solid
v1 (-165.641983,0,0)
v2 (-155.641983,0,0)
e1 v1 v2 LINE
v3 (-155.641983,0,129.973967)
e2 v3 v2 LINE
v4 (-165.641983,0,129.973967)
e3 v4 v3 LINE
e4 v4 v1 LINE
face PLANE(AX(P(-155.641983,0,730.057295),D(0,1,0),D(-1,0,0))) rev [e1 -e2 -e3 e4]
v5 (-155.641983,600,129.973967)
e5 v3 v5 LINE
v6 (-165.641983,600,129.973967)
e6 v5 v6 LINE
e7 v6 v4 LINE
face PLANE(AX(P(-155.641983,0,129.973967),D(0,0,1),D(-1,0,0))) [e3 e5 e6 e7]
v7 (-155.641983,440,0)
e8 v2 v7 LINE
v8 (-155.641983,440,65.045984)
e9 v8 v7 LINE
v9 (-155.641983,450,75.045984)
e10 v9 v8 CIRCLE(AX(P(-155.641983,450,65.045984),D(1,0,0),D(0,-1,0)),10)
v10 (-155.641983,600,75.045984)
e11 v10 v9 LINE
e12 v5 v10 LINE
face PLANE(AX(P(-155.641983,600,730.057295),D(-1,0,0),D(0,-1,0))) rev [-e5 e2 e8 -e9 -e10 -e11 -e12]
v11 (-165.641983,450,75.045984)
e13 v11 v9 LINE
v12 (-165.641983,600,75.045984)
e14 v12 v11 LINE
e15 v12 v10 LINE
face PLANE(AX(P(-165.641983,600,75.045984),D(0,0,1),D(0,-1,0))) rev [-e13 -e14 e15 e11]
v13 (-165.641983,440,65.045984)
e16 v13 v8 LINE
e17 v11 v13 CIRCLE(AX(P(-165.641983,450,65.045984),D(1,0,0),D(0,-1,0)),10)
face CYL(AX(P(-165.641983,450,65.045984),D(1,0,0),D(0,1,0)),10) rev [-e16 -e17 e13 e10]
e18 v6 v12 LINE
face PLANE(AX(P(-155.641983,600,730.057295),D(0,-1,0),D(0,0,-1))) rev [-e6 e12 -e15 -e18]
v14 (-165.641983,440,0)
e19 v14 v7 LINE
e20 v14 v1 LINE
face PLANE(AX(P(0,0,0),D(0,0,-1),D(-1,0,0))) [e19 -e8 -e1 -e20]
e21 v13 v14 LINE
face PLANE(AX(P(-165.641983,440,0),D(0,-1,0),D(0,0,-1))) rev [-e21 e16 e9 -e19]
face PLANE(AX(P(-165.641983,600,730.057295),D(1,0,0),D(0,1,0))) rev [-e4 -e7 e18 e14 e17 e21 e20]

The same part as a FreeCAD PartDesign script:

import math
import FreeCAD as App
import Part
import Sketcher

V = App.Vector
Q = App.Units.Quantity


def add_polygon(sketch, points):
    """Adds a closed chain of lines whose ends are joined by coincident constraints."""
    first, n = sketch.GeometryCount, len(points)
    for a, b in zip(points, points[1:] + points[:1]):
        sketch.addGeometry(Part.LineSegment(App.Vector(*a, 0), App.Vector(*b, 0)), False)
    for i in range(n):
        sketch.addConstraint(Sketcher.Constraint("Coincident", first + i, 2, first + (i + 1) % n, 1))

doc = App.newDocument("Part")
body = doc.addObject("PartDesign::Body", "Body")

# Sketch on XY plane
sketch1 = body.newObject("Sketcher::SketchObject", "Sketch")
sketch1.AttachmentSupport = (doc.getObject("XY_Plane"), [""])
sketch1.MapMode = "FlatFace"
add_polygon(sketch1, [(-166, 600), (-166, 0), (-156, 0), (-156, 600)])  # lines 0-3
sketch1.addConstraint(Sketcher.Constraint("Vertical", 0))
sketch1.addConstraint(Sketcher.Constraint("Horizontal", 1))
sketch1.addConstraint(Sketcher.Constraint("Vertical", 2))
sketch1.addConstraint(Sketcher.Constraint("Horizontal", 3))
sketch1.addConstraint(Sketcher.Constraint("PointOnObject", 0, 2, -1))
sketch1.addConstraint(Sketcher.Constraint("DistanceX", 1, 1, 1, 2, Q("10 mm")))
sketch1.addConstraint(Sketcher.Constraint("DistanceY", 0, 2, 0, 1, Q("600 mm")))
sketch1.addConstraint(Sketcher.Constraint("DistanceX", 0, 2, -1, 1, Q("165.641983 mm")))
pad1 = body.newObject("PartDesign::Pad", "Pad")
pad1.Profile = sketch1
pad1.Length = 129.973967

# Sketch on YZ plane
sketch2 = body.newObject("Sketcher::SketchObject", "Sketch001")
sketch2.AttachmentSupport = (doc.getObject("YZ_Plane"), [""])
sketch2.MapMode = "FlatFace"
sketch2.AttachmentOffset = App.Placement(V(0, 0, -155.641983), App.Rotation())
sketch2.addGeometry(Part.LineSegment(V(600, 0, 0), V(600, 75, 0)), False)
sketch2.addGeometry(Part.LineSegment(V(600, 75, 0), V(450, 75, 0)), False)
sketch2.addGeometry(Part.ArcOfCircle(Part.Circle(V(450, 65, 0), V(0, 0, 1), 10), math.radians(90), math.radians(180)), False)
sketch2.addGeometry(Part.LineSegment(V(440, 65, 0), V(440, 0, 0)), False)
sketch2.addGeometry(Part.LineSegment(V(440, 0, 0), V(600, 0, 0)), False)
sketch2.addConstraint(Sketcher.Constraint("Coincident", 0, 2, 1, 1))
sketch2.addConstraint(Sketcher.Constraint("Tangent", 1, 2, 2, 1))
sketch2.addConstraint(Sketcher.Constraint("Tangent", 2, 2, 3, 1))
sketch2.addConstraint(Sketcher.Constraint("Coincident", 3, 2, 4, 1))
sketch2.addConstraint(Sketcher.Constraint("Coincident", 4, 2, 0, 1))
sketch2.addConstraint(Sketcher.Constraint("Vertical", 0))
sketch2.addConstraint(Sketcher.Constraint("Horizontal", 1))
sketch2.addConstraint(Sketcher.Constraint("Vertical", 3))
sketch2.addConstraint(Sketcher.Constraint("Horizontal", 4))
sketch2.addConstraint(Sketcher.Constraint("PointOnObject", 3, 2, -1))
sketch2.addConstraint(Sketcher.Constraint("Radius", 2, Q("10 mm")))
sketch2.addConstraint(Sketcher.Constraint("DistanceX", 1, 2, 1, 1, Q("150 mm")))
sketch2.addConstraint(Sketcher.Constraint("DistanceX", -1, 1, 2, 3, Q("450 mm")))
sketch2.addConstraint(Sketcher.Constraint("DistanceY", 0, 1, 0, 2, Q("75.045984 mm")))
pocket1 = body.newObject("PartDesign::Pocket", "Pocket")
pocket1.Profile = sketch2
pocket1.Length = 10

doc.recompute()
